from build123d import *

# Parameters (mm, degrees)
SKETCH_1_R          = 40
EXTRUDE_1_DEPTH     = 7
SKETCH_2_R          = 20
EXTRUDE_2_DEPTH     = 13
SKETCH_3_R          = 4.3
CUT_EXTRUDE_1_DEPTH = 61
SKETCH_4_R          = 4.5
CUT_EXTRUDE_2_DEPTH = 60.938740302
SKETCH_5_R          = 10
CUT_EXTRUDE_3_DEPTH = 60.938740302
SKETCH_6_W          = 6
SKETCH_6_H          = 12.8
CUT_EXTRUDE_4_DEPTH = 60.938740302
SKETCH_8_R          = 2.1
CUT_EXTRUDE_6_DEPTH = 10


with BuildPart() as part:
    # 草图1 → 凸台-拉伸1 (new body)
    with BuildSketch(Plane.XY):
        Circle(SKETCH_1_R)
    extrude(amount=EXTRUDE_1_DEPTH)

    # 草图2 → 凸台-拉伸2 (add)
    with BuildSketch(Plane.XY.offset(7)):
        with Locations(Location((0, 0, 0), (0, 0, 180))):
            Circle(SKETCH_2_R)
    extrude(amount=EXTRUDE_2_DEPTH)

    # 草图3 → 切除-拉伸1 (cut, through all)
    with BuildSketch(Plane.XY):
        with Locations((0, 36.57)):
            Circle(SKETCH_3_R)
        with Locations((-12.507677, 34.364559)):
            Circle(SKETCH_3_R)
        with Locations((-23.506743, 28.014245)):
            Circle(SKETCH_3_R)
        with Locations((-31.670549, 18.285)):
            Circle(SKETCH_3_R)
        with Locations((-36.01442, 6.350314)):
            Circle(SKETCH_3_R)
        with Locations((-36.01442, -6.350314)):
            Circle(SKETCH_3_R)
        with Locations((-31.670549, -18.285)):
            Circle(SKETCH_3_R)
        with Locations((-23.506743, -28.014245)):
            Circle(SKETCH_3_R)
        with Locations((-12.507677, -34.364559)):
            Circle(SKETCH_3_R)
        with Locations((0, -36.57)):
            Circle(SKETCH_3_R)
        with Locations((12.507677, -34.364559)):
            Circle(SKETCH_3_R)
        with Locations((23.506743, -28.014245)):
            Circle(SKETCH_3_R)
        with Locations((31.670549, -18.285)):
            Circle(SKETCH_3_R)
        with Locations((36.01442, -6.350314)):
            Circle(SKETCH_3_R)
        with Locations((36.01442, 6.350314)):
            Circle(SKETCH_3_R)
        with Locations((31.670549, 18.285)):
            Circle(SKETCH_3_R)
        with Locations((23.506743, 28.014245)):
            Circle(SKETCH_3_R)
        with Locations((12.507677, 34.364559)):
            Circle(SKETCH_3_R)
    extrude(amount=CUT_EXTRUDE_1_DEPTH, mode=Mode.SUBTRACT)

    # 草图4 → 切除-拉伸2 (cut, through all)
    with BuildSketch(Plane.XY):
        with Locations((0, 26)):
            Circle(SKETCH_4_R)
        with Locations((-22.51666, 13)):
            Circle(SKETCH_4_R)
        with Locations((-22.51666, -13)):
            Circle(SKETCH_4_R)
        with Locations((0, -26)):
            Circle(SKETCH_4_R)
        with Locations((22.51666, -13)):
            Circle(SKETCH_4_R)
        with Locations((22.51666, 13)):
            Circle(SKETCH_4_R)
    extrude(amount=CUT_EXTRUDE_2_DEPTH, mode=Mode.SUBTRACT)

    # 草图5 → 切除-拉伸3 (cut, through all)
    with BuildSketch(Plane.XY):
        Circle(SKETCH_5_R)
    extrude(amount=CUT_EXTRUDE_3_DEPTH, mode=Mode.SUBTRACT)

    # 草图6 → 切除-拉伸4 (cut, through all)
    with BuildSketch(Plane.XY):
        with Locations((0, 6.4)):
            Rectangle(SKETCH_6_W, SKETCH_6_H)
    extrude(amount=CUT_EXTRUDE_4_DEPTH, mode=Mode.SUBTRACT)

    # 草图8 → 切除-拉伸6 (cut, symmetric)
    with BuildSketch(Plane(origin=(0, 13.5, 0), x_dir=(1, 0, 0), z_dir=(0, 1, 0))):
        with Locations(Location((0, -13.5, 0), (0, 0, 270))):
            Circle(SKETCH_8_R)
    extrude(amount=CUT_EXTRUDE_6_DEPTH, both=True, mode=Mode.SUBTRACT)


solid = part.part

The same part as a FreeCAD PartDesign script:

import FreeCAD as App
import Part
import Sketcher

V = App.Vector


def add_polygon(sketch, points):
    """Adds a closed chain of lines whose ends are joined by coincident constraints."""
    first, n = sketch.GeometryCount, len(points)
    for a, b in zip(points, points[1:] + points[:1]):
        sketch.addGeometry(Part.LineSegment(App.Vector(*a, 0), App.Vector(*b, 0)), False)
    for i in range(n):
        sketch.addConstraint(Sketcher.Constraint("Coincident", first + i, 2, first + (i + 1) % n, 1))

doc = App.newDocument("Part")
params = doc.addObject("Spreadsheet::Sheet", "Params")
for row, (alias, value) in enumerate([
    ("sketch1_diameter", "80 mm"),
    ("pad1_length", "7 mm"),
    ("sketch2_diameter", "40 mm"),
    ("pad2_length", "13 mm"),
    ("sketch3_diameter", "8.6 mm"),
    ("sketch4_diameter", "9 mm"),
    ("sketch5_diameter", "20 mm"),
    ("sketch6_width", "6 mm"),
    ("sketch6_height", "12.8 mm"),
    ("sketch7_diameter", "4.2 mm"),
    ("pocket5_length", "20 mm"),
], start=1):
    params.set(f"A{row}", alias)
    params.set(f"B{row}", "=" + value)
    params.setAlias(f"B{row}", alias)

body = doc.addObject("PartDesign::Body", "Body")

# Sketch on XY plane
sketch1 = body.newObject("Sketcher::SketchObject", "Sketch")
sketch1.AttachmentSupport = (doc.getObject("XY_Plane"), [""])
sketch1.MapMode = "FlatFace"
sketch1.addGeometry(Part.Circle(V(0, 0, 0), V(0, 0, 1), 40), False)
sketch1.addConstraint([
    Sketcher.Constraint("Coincident", 0, 3, -1, 1),
    Sketcher.Constraint("Diameter", 0, 80.0),
])
sketch1.setExpression("Constraints[1]", "Params.sketch1_diameter")
pad1 = body.newObject("PartDesign::Pad", "Pad")
pad1.Profile = sketch1
pad1.setExpression("Length", "Params.pad1_length")

# Sketch on XY plane
sketch2 = body.newObject("Sketcher::SketchObject", "Sketch001")
sketch2.AttachmentSupport = (doc.getObject("XY_Plane"), [""])
sketch2.MapMode = "FlatFace"
sketch2.AttachmentOffset = App.Placement(V(0, 0, 7), App.Rotation())
sketch2.addGeometry(Part.Circle(V(0, 0, 0), V(0, 0, 1), 20), False)
sketch2.addConstraint([
    Sketcher.Constraint("Coincident", 0, 3, -1, 1),
    Sketcher.Constraint("Diameter", 0, 40.0),
])
sketch2.setExpression("Constraints[1]", "Params.sketch2_diameter")
pad2 = body.newObject("PartDesign::Pad", "Pad001")
pad2.Profile = sketch2
pad2.setExpression("Length", "Params.pad2_length")

# Sketch on XY plane
sketch3 = body.newObject("Sketcher::SketchObject", "Sketch002")
sketch3.AttachmentSupport = (doc.getObject("XY_Plane"), [""])
sketch3.MapMode = "FlatFace"
sketch3.addGeometry([
    Part.Circle(V(0, 36.57, 0), V(0, 0, 1), 4.3),  # 0
    Part.Circle(V(-12.507677, 34.364559, 0), V(0, 0, 1), 4.3),  # 1
    Part.Circle(V(-23.506743, 28.014245, 0), V(0, 0, 1), 4.3),  # 2
    Part.Circle(V(-31.670549, 18.285, 0), V(0, 0, 1), 4.3),  # 3
    Part.Circle(V(-36.01442, 6.350314, 0), V(0, 0, 1), 4.3),  # 4
    Part.Circle(V(-36.01442, -6.350314, 0), V(0, 0, 1), 4.3),  # 5
    Part.Circle(V(-31.670549, -18.285, 0), V(0, 0, 1), 4.3),  # 6
    Part.Circle(V(-23.506743, -28.014245, 0), V(0, 0, 1), 4.3),  # 7
    Part.Circle(V(-12.507677, -34.364559, 0), V(0, 0, 1), 4.3),  # 8
    Part.Circle(V(0, -36.57, 0), V(0, 0, 1), 4.3),  # 9
    Part.Circle(V(12.507677, -34.364559, 0), V(0, 0, 1), 4.3),  # 10
    Part.Circle(V(23.506743, -28.014245, 0), V(0, 0, 1), 4.3),  # 11
    Part.Circle(V(31.670549, -18.285, 0), V(0, 0, 1), 4.3),  # 12
    Part.Circle(V(36.01442, -6.350314, 0), V(0, 0, 1), 4.3),  # 13
    Part.Circle(V(36.01442, 6.350314, 0), V(0, 0, 1), 4.3),  # 14
    Part.Circle(V(31.670549, 18.285, 0), V(0, 0, 1), 4.3),  # 15
    Part.Circle(V(23.506743, 28.014245, 0), V(0, 0, 1), 4.3),  # 16
    Part.Circle(V(12.507677, 34.364559, 0), V(0, 0, 1), 4.3),  # 17
], False)
sketch3.addConstraint([
    Sketcher.Constraint("Equal", 0, 1),
    Sketcher.Constraint("Equal", 1, 2),
    Sketcher.Constraint("Equal", 2, 3),
    Sketcher.Constraint("Equal", 3, 4),
    Sketcher.Constraint("Equal", 4, 5),
    Sketcher.Constraint("Equal", 5, 6),
    Sketcher.Constraint("Equal", 6, 7),
    Sketcher.Constraint("Equal", 7, 8),
    Sketcher.Constraint("Equal", 8, 9),
    Sketcher.Constraint("Equal", 9, 10),
    Sketcher.Constraint("Equal", 10, 11),
    Sketcher.Constraint("Equal", 11, 12),
    Sketcher.Constraint("Equal", 12, 13),
    Sketcher.Constraint("Equal", 13, 14),
    Sketcher.Constraint("Equal", 14, 15),
    Sketcher.Constraint("Equal", 15, 16),
    Sketcher.Constraint("Equal", 16, 17),
    Sketcher.Constraint("Symmetric", 0, 3, 9, 3, -1, 1),
    Sketcher.Constraint("Symmetric", 1, 3, 10, 3, -1, 1),
    Sketcher.Constraint("Symmetric", 2, 3, 11, 3, -1, 1),
    Sketcher.Constraint("Symmetric", 3, 3, 12, 3, -1, 1),
    Sketcher.Constraint("Symmetric", 4, 3, 13, 3, -1, 1),
    Sketcher.Constraint("Symmetric", 5, 3, 14, 3, -1, 1),
    Sketcher.Constraint("Symmetric", 6, 3, 15, 3, -1, 1),
    Sketcher.Constraint("Symmetric", 7, 3, 16, 3, -1, 1),
    Sketcher.Constraint("Symmetric", 8, 3, 17, 3, -1, 1),
    Sketcher.Constraint("Symmetric", 8, 3, 10, 3, -2),
    Sketcher.Constraint("Symmetric", 7, 3, 11, 3, -2),
    Sketcher.Constraint("Symmetric", 6, 3, 12, 3, -2),
    Sketcher.Constraint("Symmetric", 5, 3, 13, 3, -2),
    Sketcher.Constraint("PointOnObject", 0, 3, -2),
    Sketcher.Constraint("Diameter", 0, 8.6),
    Sketcher.Constraint("DistanceY", -1, 1, 0, 3, 36.57),
    Sketcher.Constraint("DistanceY", 6, 3, 3, 3, 36.57),
    Sketcher.Constraint("DistanceY", -1, 1, 1, 3, 34.364559),
    Sketcher.Constraint("DistanceX", 3, 3, -1, 1, 31.670549),
    Sketcher.Constraint("DistanceX", 4, 3, -1, 1, 36.01442),
    Sketcher.Constraint("DistanceX", 3, 3, 1, 3, 19.162872),
    Sketcher.Constraint("DistanceY", 4, 3, 2, 3, 21.663931),
    Sketcher.Constraint("DistanceY", 5, 3, 2, 3, 34.364559),
    Sketcher.Constraint("DistanceX", 7, 3, 10, 3, 36.01442),
])
sketch3.setExpression("Constraints[31]", "Params.sketch3_diameter")
pocket1 = body.newObject("PartDesign::Pocket", "Pocket")
pocket1.Profile = sketch3
pocket1.Type = "ThroughAll"
pocket1.Reversed = True

# Sketch on XY plane
sketch4 = body.newObject("Sketcher::SketchObject", "Sketch003")
sketch4.AttachmentSupport = (doc.getObject("XY_Plane"), [""])
sketch4.MapMode = "FlatFace"
sketch4.addGeometry([
    Part.Circle(V(0, 26, 0), V(0, 0, 1), 4.5),  # 0
    Part.Circle(V(-22.51666, 13, 0), V(0, 0, 1), 4.5),  # 1
    Part.Circle(V(-22.51666, -13, 0), V(0, 0, 1), 4.5),  # 2
    Part.Circle(V(0, -26, 0), V(0, 0, 1), 4.5),  # 3
    Part.Circle(V(22.51666, -13, 0), V(0, 0, 1), 4.5),  # 4
    Part.Circle(V(22.51666, 13, 0), V(0, 0, 1), 4.5),  # 5
], False)
sketch4.addConstraint([
    Sketcher.Constraint("Equal", 0, 1),
    Sketcher.Constraint("Equal", 1, 2),
    Sketcher.Constraint("Equal", 2, 3),
    Sketcher.Constraint("Equal", 3, 4),
    Sketcher.Constraint("Equal", 4, 5),
    Sketcher.Constraint("Symmetric", 0, 3, 3, 3, -1, 1),
    Sketcher.Constraint("Symmetric", 1, 3, 4, 3, -1, 1),
    Sketcher.Constraint("Symmetric", 2, 3, 5, 3, -1, 1),
    Sketcher.Constraint("Symmetric", 2, 3, 4, 3, -2),
    Sketcher.Constraint("PointOnObject", 0, 3, -2),
    Sketcher.Constraint("Diameter", 0, 9.0),
    Sketcher.Constraint("DistanceY", -1, 1, 0, 3, 26.0),
    Sketcher.Constraint("DistanceY", -1, 1, 1, 3, 13.0),
    Sketcher.Constraint("DistanceX", 1, 3, -1, 1, 22.51666),
])
sketch4.setExpression("Constraints[10]", "Params.sketch4_diameter")
pocket2 = body.newObject("PartDesign::Pocket", "Pocket001")
pocket2.Profile = sketch4
pocket2.Type = "ThroughAll"
pocket2.Reversed = True

# Sketch on XY plane
sketch5 = body.newObject("Sketcher::SketchObject", "Sketch004")
sketch5.AttachmentSupport = (doc.getObject("XY_Plane"), [""])
sketch5.MapMode = "FlatFace"
sketch5.addGeometry(Part.Circle(V(0, 0, 0), V(0, 0, 1), 10), False)
sketch5.addConstraint([
    Sketcher.Constraint("Coincident", 0, 3, -1, 1),
    Sketcher.Constraint("Diameter", 0, 20.0),
])
sketch5.setExpression("Constraints[1]", "Params.sketch5_diameter")
pocket3 = body.newObject("PartDesign::Pocket", "Pocket002")
pocket3.Profile = sketch5
pocket3.Type = "ThroughAll"
pocket3.Reversed = True

# Sketch on XY plane
sketch6 = body.newObject("Sketcher::SketchObject", "Sketch005")
sketch6.AttachmentSupport = (doc.getObject("XY_Plane"), [""])
sketch6.MapMode = "FlatFace"
add_polygon(sketch6, [(-3, 12.8), (-3, 0), (3, 0), (3, 12.8)])  # lines 0-3
sketch6.addConstraint([
    Sketcher.Constraint("Vertical", 0),
    Sketcher.Constraint("Horizontal", 1),
    Sketcher.Constraint("Vertical", 2),
    Sketcher.Constraint("Horizontal", 3),
    Sketcher.Constraint("Symmetric", 0, 2, 1, 2, -1, 1),
    Sketcher.Constraint("DistanceX", 1, 1, 1, 2, 6.0),
    Sketcher.Constraint("DistanceY", 0, 2, 0, 1, 12.8),
])
sketch6.setExpression("Constraints[9]", "Params.sketch6_width")
sketch6.setExpression("Constraints[10]", "Params.sketch6_height")
pocket4 = body.newObject("PartDesign::Pocket", "Pocket003")
pocket4.Profile = sketch6
pocket4.Type = "ThroughAll"
pocket4.Reversed = True

# Sketch on XZ plane
sketch7 = body.newObject("Sketcher::SketchObject", "Sketch006")
sketch7.AttachmentSupport = (doc.getObject("XZ_Plane"), [""])
sketch7.MapMode = "FlatFace"
sketch7.AttachmentOffset = App.Placement(V(0, 0, -13.5), App.Rotation())
sketch7.addGeometry(Part.Circle(V(0, 13.5, 0), V(0, 0, 1), 2.1), False)
sketch7.addConstraint([
    Sketcher.Constraint("PointOnObject", 0, 3, -2),
    Sketcher.Constraint("Diameter", 0, 4.2),
    Sketcher.Constraint("DistanceY", -1, 1, 0, 3, 13.5),
])
sketch7.setExpression("Constraints[1]", "Params.sketch7_diameter")
pocket5 = body.newObject("PartDesign::Pocket", "Pocket004")
pocket5.Profile = sketch7
pocket5.setExpression("Length", "Params.pocket5_length")
pocket5.Midplane = True

doc.recompute()
